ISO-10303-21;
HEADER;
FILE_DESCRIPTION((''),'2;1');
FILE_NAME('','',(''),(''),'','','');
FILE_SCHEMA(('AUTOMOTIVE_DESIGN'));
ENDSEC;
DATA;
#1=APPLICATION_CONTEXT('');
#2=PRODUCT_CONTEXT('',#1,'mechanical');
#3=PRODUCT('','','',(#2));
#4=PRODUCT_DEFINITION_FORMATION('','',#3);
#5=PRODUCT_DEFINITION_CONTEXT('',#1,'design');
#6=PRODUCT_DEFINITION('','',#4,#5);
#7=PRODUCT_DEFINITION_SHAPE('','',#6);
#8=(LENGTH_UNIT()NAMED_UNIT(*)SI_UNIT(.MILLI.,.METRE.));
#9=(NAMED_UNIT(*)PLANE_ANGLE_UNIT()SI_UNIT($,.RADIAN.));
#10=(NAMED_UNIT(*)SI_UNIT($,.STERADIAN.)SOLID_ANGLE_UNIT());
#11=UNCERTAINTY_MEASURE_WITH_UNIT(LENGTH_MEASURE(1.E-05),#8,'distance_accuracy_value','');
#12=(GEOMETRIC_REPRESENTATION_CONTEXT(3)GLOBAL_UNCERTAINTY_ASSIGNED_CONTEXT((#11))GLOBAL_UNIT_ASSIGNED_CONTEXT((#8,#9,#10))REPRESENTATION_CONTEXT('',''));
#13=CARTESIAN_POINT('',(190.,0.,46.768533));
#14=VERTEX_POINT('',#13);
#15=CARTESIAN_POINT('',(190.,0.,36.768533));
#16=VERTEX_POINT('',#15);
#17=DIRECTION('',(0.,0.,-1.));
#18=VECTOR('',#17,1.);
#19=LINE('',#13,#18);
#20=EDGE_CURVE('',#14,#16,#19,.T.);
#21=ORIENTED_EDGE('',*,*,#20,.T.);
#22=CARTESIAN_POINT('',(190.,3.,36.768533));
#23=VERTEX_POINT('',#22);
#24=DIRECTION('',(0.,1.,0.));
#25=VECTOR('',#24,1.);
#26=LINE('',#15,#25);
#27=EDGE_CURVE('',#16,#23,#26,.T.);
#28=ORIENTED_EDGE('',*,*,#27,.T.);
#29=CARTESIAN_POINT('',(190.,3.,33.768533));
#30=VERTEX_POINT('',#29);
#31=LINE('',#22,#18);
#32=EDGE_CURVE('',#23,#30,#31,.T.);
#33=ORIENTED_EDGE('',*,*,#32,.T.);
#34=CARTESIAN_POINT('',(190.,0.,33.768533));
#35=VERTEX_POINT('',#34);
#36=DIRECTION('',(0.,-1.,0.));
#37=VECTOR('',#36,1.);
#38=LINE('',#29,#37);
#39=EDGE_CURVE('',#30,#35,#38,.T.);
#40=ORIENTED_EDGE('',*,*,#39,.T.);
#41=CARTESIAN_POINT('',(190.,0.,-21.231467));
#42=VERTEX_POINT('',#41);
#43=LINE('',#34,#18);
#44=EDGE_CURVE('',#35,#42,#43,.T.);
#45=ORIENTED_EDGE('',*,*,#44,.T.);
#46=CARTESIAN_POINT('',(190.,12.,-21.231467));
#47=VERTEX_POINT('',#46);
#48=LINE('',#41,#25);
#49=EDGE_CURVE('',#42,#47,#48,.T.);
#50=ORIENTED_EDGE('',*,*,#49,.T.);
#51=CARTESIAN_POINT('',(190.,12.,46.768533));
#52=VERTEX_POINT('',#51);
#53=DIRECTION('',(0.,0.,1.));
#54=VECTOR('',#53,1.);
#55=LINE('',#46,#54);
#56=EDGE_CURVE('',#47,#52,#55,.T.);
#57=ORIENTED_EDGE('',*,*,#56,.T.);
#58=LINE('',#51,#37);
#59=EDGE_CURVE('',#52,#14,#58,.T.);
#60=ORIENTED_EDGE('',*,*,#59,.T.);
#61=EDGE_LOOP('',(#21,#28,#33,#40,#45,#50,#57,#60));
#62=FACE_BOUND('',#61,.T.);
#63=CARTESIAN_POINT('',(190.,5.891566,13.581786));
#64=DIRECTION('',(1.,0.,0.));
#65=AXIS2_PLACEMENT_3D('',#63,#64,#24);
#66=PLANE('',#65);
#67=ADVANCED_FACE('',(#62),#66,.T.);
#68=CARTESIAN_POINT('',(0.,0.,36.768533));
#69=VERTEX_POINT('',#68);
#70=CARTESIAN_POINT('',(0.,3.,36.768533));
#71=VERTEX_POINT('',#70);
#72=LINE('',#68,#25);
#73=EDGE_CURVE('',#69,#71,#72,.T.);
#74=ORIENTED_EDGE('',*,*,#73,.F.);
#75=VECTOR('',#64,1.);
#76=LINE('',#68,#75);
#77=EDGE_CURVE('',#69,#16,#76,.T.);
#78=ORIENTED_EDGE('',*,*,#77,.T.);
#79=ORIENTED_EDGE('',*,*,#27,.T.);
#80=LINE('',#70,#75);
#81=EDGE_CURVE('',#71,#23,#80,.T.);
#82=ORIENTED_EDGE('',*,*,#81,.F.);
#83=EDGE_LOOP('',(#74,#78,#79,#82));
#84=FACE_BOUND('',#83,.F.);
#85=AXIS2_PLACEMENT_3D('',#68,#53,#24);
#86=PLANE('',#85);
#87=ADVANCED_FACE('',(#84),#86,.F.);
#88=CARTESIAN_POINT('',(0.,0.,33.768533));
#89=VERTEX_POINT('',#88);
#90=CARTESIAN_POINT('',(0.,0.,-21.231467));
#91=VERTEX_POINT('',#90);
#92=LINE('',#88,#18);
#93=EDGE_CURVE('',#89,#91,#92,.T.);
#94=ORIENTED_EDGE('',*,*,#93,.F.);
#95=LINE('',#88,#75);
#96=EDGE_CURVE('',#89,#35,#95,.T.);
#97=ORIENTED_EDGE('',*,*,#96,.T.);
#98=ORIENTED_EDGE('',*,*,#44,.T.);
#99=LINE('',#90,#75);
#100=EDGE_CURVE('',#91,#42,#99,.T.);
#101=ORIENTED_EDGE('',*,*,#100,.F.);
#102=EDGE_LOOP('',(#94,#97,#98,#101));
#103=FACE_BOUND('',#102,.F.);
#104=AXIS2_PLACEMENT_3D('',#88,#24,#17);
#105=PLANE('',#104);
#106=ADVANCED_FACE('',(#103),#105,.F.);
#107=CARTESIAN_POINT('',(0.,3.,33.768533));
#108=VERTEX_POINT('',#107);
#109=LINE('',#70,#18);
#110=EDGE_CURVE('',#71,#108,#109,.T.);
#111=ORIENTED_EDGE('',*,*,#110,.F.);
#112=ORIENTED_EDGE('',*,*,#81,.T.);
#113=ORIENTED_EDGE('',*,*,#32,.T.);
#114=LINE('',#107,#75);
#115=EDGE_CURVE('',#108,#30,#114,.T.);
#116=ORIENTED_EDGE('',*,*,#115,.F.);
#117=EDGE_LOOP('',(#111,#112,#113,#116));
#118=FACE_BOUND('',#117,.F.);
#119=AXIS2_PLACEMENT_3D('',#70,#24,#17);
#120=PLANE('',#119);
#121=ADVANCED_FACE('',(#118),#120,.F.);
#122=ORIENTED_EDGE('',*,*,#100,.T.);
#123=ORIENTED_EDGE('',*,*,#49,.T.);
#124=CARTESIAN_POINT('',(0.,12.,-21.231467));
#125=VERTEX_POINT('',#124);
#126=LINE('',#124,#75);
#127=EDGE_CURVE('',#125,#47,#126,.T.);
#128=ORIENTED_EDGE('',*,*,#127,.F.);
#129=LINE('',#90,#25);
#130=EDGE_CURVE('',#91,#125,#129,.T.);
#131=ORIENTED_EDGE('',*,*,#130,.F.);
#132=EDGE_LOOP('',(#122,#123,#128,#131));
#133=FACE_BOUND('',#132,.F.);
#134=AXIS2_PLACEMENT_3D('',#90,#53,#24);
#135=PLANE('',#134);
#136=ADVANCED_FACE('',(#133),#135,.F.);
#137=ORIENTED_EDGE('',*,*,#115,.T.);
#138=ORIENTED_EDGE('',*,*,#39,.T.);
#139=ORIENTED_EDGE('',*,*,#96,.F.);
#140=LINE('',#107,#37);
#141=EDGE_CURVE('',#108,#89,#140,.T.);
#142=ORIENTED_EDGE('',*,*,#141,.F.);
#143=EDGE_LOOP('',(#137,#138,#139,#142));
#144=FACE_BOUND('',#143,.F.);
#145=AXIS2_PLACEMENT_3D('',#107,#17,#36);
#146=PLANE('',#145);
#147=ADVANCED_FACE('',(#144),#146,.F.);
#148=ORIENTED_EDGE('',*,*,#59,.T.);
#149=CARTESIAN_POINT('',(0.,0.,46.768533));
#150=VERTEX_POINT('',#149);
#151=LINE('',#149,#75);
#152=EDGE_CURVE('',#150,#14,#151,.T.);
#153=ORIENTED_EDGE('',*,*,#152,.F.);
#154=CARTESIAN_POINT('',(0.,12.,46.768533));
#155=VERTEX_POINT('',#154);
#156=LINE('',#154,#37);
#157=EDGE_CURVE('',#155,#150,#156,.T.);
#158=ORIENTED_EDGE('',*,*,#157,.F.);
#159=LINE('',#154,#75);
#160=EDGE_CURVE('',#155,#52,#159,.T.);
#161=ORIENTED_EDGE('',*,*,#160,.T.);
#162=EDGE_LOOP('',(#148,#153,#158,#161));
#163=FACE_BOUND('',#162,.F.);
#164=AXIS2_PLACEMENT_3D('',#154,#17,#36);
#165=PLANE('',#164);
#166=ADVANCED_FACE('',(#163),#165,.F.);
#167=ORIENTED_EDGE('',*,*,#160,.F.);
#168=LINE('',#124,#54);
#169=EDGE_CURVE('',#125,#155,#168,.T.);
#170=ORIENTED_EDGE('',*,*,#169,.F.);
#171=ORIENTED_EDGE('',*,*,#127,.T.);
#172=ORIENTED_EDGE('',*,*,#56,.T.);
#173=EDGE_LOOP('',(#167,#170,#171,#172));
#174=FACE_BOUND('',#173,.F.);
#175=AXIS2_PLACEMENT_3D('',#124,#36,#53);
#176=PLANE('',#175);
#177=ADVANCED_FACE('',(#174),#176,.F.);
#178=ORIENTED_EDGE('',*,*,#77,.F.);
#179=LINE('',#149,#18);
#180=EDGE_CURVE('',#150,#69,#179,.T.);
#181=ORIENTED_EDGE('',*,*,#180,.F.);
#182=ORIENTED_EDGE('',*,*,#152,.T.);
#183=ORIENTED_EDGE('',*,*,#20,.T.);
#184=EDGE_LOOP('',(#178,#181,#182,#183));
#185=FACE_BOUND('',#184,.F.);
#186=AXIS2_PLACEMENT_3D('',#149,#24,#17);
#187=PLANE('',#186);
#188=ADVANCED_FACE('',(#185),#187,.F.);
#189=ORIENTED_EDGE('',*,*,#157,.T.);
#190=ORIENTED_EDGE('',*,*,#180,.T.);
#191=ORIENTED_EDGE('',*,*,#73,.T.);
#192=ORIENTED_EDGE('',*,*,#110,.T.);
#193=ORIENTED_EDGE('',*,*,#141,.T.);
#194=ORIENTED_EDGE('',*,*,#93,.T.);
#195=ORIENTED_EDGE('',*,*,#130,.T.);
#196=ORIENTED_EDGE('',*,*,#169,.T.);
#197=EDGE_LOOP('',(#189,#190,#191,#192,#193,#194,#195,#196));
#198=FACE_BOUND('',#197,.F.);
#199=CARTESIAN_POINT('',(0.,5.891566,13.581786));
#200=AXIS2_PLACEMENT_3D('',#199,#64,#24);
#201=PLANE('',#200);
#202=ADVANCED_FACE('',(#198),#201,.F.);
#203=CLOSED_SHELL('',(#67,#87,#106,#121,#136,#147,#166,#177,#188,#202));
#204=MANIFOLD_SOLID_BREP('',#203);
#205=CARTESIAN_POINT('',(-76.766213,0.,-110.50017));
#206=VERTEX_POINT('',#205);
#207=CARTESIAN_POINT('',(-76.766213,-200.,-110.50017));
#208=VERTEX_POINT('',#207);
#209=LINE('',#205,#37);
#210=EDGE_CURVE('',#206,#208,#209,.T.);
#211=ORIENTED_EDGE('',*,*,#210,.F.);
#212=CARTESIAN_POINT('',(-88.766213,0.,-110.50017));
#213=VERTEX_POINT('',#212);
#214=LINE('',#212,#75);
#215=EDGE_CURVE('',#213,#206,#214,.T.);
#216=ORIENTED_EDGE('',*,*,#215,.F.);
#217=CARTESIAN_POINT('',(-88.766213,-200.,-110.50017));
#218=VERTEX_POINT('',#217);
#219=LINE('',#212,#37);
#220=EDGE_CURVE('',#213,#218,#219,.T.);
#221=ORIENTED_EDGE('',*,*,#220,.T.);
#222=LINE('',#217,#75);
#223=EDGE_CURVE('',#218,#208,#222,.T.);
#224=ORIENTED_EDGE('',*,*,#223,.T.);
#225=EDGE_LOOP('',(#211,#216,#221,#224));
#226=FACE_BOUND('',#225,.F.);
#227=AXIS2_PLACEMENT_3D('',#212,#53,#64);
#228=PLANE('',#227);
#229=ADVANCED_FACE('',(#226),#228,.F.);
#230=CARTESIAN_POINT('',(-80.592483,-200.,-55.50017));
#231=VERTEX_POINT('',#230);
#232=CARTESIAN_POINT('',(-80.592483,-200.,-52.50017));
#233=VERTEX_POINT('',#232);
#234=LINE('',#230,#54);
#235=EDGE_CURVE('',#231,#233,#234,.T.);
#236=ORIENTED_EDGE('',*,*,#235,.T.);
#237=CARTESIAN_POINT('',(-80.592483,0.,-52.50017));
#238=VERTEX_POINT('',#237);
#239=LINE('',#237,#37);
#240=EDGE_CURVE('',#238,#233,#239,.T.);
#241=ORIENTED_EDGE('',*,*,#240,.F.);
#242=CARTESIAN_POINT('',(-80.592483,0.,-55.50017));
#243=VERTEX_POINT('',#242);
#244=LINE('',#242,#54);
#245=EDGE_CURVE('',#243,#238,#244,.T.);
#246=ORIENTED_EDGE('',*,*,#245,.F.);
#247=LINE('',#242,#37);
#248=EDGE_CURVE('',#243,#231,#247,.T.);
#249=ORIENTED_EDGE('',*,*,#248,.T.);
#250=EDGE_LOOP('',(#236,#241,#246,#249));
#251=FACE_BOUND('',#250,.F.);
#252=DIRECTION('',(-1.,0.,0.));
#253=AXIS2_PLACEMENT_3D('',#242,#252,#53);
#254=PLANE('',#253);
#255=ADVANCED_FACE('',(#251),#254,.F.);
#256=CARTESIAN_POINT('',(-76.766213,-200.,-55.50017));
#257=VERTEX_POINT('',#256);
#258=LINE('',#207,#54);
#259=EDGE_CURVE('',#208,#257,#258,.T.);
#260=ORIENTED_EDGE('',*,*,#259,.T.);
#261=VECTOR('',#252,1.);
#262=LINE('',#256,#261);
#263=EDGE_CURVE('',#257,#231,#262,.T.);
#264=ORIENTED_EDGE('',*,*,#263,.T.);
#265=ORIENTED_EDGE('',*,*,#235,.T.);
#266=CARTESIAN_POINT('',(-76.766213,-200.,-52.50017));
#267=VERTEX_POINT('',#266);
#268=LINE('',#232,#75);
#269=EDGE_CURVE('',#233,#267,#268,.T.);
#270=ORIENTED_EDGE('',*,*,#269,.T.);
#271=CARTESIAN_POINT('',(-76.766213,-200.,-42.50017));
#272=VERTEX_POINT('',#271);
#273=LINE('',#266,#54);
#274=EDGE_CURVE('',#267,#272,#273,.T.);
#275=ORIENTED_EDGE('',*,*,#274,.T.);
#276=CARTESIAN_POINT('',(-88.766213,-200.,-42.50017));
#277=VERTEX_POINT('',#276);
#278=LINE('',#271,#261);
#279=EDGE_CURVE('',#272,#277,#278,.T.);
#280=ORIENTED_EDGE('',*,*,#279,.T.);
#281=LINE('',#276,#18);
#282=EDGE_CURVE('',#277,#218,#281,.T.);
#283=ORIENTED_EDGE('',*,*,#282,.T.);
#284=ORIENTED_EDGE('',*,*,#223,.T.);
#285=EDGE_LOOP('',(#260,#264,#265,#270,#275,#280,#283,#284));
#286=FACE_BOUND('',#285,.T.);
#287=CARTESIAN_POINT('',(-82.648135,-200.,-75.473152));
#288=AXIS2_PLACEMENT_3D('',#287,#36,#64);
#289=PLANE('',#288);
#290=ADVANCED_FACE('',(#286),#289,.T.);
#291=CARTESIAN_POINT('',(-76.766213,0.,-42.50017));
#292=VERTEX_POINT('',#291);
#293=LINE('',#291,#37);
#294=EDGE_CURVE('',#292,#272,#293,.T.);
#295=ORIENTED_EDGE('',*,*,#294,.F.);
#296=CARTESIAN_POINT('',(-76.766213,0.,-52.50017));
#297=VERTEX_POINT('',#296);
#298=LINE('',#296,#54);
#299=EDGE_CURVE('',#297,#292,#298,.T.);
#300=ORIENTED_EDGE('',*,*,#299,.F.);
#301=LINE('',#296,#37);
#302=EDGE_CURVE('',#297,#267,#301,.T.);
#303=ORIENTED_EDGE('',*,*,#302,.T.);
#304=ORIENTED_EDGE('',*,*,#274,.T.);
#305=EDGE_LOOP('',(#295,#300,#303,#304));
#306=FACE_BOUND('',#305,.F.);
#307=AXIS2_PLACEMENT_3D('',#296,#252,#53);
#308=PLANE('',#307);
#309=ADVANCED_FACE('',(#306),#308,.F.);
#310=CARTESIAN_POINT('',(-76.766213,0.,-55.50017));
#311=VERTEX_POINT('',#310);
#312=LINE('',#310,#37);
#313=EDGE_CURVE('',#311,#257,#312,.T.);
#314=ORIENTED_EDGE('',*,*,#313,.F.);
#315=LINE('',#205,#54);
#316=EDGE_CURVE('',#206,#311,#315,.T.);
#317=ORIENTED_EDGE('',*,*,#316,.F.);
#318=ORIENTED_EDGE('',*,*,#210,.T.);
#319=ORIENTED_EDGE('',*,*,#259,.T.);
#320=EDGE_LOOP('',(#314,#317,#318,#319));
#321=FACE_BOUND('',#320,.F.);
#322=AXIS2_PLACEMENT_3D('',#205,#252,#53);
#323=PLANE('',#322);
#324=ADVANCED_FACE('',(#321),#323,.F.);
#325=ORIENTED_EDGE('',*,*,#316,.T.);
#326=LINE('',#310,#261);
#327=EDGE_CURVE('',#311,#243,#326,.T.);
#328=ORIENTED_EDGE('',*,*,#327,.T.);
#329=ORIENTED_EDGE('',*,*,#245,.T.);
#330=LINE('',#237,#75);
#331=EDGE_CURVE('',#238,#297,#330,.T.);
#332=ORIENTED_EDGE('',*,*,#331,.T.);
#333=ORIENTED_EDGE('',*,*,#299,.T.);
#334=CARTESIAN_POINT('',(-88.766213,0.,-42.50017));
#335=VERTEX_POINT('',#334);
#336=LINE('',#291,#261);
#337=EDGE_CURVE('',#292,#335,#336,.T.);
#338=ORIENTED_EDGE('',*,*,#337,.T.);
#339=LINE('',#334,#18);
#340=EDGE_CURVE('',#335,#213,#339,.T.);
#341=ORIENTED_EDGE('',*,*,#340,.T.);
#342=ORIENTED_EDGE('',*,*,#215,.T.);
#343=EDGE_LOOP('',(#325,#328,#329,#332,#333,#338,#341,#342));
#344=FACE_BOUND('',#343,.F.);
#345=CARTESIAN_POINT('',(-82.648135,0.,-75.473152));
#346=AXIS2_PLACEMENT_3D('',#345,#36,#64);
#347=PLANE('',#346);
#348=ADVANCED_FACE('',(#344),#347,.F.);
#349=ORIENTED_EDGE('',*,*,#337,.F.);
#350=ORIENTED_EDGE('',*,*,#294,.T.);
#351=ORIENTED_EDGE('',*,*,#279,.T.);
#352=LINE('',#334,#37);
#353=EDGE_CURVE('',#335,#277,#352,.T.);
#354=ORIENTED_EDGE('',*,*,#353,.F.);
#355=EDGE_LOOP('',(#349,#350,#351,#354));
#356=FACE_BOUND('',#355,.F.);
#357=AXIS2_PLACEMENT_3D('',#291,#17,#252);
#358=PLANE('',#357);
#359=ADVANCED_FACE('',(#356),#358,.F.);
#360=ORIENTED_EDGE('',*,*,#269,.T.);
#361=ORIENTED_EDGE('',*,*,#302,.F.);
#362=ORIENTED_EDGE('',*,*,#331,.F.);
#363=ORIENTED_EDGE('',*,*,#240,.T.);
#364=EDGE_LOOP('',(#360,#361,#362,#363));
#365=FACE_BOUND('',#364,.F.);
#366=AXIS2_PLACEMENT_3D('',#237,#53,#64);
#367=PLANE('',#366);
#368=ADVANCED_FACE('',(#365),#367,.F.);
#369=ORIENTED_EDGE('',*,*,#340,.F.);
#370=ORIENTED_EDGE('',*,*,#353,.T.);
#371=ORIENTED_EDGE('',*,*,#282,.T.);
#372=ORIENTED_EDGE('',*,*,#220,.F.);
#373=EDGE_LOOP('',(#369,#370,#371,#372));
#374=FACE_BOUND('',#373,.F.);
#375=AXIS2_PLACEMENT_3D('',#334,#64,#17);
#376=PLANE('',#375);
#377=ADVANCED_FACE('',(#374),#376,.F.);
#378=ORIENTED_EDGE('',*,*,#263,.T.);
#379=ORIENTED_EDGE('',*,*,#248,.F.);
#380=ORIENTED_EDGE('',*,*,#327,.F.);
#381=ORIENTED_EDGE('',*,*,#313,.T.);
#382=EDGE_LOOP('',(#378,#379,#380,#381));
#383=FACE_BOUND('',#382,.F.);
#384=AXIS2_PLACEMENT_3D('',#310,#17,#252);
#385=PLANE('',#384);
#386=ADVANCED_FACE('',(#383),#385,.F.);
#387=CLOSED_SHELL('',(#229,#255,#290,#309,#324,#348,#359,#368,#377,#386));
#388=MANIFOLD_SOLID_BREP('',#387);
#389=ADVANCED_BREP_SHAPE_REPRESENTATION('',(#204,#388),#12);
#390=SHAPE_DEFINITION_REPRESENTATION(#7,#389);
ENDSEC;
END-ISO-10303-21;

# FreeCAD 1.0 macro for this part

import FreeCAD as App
import Part
import Sketcher
Q = App.Units.Quantity


def add_polygon(sketch, points):
    """Adds a closed chain of lines whose ends are joined by coincident constraints."""
    first, n = sketch.GeometryCount, len(points)
    for a, b in zip(points, points[1:] + points[:1]):
        sketch.addGeometry(Part.LineSegment(App.Vector(*a, 0), App.Vector(*b, 0)), False)
    for i in range(n):
        sketch.addConstraint(Sketcher.Constraint("Coincident", first + i, 2, first + (i + 1) % n, 1))

doc = App.newDocument("Part")
body = doc.addObject("PartDesign::Body", "Body")

sketch1 = doc.addObject("Sketcher::SketchObject", "Sketch")
body.addObject(sketch1)
sketch1.AttachmentSupport = (doc.YZ_Plane, [""])
sketch1.MapMode = "FlatFace"
add_polygon(sketch1, [(12, 46.8), (0, 46.8), (0, 36.8), (3, 36.8), (3, 33.8), (0, 33.8), (0, -21.2), (12, -21.2)])
sketch1.addConstraint(Sketcher.Constraint("Horizontal", 0))
sketch1.addConstraint(Sketcher.Constraint("Vertical", 1))
sketch1.addConstraint(Sketcher.Constraint("Horizontal", 2))
sketch1.addConstraint(Sketcher.Constraint("Vertical", 3))
sketch1.addConstraint(Sketcher.Constraint("Horizontal", 4))
sketch1.addConstraint(Sketcher.Constraint("Vertical", 5))
sketch1.addConstraint(Sketcher.Constraint("Horizontal", 6))
sketch1.addConstraint(Sketcher.Constraint("Vertical", 7))
sketch1.addConstraint(Sketcher.Constraint("PointOnObject", 0, 2, -2))
sketch1.addConstraint(Sketcher.Constraint("PointOnObject", 4, 2, -2))
sketch1.addConstraint(Sketcher.Constraint("Equal", 4, 3))
sketch1.addConstraint(Sketcher.Constraint("DistanceX", 0, 2, 0, 1, Q("12 mm")))
sketch1.addConstraint(Sketcher.Constraint("DistanceX", 2, 1, 2, 2, Q("3 mm")))
sketch1.addConstraint(Sketcher.Constraint("DistanceY", 1, 2, 1, 1, Q("10 mm")))
sketch1.addConstraint(Sketcher.Constraint("DistanceY", 5, 2, 5, 1, Q("55 mm")))
sketch1.addConstraint(Sketcher.Constraint("DistanceY", -1, 1, 0, 2, Q("46.768533 mm")))
pad1 = doc.addObject("PartDesign::Pad", "Pad")
body.addObject(pad1)
pad1.Profile = sketch1
pad1.Length = 190
body2 = doc.addObject("PartDesign::Body", "Body001")

sketch2 = doc.addObject("Sketcher::SketchObject", "Sketch001")
body2.addObject(sketch2)
sketch2.AttachmentSupport = (doc.getObject("XZ_Plane001"), [""])
sketch2.MapMode = "FlatFace"
add_polygon(sketch2, [(-76.8, -42.5), (-88.8, -42.5), (-88.8, -110.5), (-76.8, -110.5), (-76.8, -55.5), (-80.6, -55.5), (-80.6, -52.5), (-76.8, -52.5)])
sketch2.addConstraint(Sketcher.Constraint("Horizontal", 0))
sketch2.addConstraint(Sketcher.Constraint("Vertical", 1))
sketch2.addConstraint(Sketcher.Constraint("Horizontal", 2))
sketch2.addConstraint(Sketcher.Constraint("Vertical", 3))
sketch2.addConstraint(Sketcher.Constraint("Horizontal", 4))
sketch2.addConstraint(Sketcher.Constraint("Vertical", 5))
sketch2.addConstraint(Sketcher.Constraint("Horizontal", 6))
sketch2.addConstraint(Sketcher.Constraint("Vertical", 7))
sketch2.addConstraint(Sketcher.Constraint("Vertical", 3, 2, 6, 2))
sketch2.addConstraint(Sketcher.Constraint("DistanceX", 0, 2, 0, 1, Q("12 mm")))
sketch2.addConstraint(Sketcher.Constraint("DistanceY", 1, 2, 1, 1, Q("68 mm")))
sketch2.addConstraint(Sketcher.Constraint("DistanceY", 3, 1, 3, 2, Q("55 mm")))
sketch2.addConstraint(Sketcher.Constraint("DistanceY", 5, 1, 5, 2, Q("3 mm")))
sketch2.addConstraint(Sketcher.Constraint("DistanceX", 4, 2, 4, 1, Q("3.82627 mm")))
sketch2.addConstraint(Sketcher.Constraint("DistanceY", 0, 2, -1, 1, Q("42.50017 mm")))
sketch2.addConstraint(Sketcher.Constraint("DistanceX", 0, 2, -1, 1, Q("88.766213 mm")))
pad2 = doc.addObject("PartDesign::Pad", "Pad001")
body2.addObject(pad2)
pad2.Profile = sketch2
pad2.Length = 200

doc.recompute()
